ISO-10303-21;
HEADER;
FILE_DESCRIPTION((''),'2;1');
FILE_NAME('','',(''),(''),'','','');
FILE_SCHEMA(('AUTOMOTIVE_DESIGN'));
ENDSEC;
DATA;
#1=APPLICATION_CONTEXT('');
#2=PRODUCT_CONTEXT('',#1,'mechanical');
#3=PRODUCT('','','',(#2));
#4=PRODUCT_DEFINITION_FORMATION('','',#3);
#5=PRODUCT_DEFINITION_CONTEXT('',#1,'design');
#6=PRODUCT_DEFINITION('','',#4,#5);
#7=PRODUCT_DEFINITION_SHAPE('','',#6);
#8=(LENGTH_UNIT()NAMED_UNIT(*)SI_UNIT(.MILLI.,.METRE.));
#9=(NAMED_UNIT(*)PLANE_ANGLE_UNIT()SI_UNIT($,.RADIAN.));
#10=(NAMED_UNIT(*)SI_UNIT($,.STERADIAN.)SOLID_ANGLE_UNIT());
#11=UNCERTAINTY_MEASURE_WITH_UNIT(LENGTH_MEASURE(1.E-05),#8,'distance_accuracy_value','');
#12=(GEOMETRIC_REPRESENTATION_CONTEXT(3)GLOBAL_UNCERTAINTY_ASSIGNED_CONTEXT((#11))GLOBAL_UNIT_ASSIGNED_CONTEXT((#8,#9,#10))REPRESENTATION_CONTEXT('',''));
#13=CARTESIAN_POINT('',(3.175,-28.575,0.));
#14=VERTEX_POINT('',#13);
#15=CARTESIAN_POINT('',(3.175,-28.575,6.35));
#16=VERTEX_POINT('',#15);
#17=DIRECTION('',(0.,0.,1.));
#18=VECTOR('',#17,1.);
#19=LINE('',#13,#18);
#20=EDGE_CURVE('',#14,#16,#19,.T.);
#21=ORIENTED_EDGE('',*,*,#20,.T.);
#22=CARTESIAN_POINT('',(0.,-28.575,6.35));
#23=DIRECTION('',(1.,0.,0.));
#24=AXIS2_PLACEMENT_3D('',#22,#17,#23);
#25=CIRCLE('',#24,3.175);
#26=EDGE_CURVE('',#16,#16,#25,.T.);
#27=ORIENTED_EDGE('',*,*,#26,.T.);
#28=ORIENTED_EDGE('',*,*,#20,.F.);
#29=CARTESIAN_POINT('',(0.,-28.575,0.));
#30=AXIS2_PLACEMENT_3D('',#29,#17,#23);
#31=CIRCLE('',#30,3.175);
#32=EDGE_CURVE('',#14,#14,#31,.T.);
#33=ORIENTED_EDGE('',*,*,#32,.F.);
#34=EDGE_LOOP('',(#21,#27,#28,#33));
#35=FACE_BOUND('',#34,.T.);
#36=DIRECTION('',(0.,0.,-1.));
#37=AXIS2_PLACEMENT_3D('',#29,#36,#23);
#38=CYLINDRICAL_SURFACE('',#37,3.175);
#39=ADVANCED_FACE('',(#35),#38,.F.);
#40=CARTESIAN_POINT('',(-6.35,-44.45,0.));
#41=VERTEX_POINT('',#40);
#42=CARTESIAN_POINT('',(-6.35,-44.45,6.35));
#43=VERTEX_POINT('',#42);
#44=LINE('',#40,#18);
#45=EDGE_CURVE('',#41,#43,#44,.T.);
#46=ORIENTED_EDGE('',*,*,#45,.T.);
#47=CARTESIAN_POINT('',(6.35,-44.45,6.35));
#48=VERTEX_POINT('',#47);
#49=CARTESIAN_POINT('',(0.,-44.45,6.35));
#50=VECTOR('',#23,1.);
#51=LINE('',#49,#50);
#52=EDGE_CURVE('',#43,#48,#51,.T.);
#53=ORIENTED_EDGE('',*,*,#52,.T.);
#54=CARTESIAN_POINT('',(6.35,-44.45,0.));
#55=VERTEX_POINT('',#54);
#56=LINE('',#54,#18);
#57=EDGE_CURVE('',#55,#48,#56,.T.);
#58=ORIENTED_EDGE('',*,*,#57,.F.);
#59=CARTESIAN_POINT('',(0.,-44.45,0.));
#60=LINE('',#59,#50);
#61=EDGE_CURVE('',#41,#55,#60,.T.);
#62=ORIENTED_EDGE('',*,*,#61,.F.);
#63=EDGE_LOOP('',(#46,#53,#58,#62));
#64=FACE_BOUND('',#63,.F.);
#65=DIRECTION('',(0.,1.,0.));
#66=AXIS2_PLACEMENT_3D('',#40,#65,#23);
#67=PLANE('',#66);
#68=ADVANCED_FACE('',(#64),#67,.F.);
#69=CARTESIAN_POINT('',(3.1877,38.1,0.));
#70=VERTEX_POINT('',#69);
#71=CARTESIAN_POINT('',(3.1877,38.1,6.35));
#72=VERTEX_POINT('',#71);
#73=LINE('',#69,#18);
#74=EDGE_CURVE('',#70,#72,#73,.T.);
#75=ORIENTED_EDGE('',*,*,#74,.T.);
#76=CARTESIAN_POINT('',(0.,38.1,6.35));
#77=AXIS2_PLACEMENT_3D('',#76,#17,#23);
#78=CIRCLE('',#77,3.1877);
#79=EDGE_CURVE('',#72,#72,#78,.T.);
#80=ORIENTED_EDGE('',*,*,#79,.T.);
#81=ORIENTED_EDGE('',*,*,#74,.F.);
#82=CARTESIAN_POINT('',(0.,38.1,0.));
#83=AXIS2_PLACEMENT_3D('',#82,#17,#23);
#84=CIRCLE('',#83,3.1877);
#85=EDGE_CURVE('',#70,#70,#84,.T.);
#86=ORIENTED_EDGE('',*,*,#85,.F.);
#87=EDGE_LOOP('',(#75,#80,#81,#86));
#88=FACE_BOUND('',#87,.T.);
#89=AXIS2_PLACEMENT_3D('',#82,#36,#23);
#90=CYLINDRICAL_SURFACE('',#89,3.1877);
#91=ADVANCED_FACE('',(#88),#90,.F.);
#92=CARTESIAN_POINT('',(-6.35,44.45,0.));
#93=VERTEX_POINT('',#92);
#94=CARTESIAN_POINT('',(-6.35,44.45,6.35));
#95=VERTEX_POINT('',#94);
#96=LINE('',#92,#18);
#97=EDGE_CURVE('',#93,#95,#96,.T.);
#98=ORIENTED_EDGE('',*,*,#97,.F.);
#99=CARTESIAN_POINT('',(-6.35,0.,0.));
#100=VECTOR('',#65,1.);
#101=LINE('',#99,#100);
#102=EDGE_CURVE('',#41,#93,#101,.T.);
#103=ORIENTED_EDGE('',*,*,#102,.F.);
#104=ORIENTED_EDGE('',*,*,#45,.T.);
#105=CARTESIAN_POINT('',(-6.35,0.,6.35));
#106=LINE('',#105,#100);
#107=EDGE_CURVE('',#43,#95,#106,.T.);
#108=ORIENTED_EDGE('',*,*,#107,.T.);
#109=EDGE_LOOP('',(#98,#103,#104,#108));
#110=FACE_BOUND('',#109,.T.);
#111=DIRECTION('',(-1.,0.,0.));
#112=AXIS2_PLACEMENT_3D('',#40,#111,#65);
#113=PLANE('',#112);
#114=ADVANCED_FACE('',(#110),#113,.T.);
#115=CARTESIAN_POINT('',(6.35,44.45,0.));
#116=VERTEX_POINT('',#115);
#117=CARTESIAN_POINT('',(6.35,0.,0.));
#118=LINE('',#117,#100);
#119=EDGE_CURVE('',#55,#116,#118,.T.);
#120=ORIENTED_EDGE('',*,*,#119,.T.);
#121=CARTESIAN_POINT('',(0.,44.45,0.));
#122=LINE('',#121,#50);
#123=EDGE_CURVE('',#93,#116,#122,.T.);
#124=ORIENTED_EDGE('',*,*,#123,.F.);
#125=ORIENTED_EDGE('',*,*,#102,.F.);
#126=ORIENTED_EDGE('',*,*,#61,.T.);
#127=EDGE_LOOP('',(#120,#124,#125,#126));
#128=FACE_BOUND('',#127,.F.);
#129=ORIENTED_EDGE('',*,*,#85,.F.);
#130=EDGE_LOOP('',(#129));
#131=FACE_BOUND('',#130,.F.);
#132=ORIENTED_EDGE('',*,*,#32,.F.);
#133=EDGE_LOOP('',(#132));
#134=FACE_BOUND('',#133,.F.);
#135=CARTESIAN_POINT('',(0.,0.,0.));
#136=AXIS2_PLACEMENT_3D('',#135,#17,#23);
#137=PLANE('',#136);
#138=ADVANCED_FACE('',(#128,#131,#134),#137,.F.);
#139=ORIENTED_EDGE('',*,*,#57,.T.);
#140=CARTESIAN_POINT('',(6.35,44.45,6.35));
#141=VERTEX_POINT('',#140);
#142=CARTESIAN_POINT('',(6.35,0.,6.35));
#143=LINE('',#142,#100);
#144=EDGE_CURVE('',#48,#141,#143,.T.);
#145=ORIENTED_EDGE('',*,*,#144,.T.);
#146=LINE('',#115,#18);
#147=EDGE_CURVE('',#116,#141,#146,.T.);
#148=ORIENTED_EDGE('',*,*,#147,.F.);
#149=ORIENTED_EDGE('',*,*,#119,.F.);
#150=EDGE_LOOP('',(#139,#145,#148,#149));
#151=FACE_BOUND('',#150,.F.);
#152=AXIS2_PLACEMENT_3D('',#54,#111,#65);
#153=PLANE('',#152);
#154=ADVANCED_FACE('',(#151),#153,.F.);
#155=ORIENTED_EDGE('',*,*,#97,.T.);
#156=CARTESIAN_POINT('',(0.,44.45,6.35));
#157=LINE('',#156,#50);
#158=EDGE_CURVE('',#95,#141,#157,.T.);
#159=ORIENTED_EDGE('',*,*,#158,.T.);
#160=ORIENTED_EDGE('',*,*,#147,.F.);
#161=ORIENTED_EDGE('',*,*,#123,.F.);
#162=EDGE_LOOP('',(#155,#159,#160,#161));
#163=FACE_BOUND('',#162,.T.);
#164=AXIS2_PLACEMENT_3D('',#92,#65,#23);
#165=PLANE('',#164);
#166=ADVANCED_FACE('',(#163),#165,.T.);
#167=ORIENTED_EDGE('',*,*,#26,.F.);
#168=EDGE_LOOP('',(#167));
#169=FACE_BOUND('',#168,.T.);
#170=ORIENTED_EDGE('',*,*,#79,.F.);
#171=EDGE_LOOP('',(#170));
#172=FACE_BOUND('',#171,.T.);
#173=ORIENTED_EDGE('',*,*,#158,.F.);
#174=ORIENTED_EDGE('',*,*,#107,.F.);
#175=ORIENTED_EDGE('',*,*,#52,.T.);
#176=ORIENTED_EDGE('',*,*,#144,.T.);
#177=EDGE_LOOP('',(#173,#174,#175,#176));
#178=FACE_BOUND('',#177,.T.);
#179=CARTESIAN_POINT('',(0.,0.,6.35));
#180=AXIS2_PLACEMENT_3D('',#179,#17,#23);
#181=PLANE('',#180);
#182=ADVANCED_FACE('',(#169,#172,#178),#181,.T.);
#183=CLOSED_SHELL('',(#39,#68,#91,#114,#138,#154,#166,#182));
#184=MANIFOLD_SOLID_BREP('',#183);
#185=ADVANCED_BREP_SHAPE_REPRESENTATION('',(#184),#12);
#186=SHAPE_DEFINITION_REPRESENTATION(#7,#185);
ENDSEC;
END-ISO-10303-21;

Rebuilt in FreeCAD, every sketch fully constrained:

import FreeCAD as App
import Part
import Sketcher

V = App.Vector
Q = App.Units.Quantity

doc = App.newDocument("Part")
body = doc.addObject("PartDesign::Body", "Body")

# Sketch on XY plane
sketch1 = body.newObject("Sketcher::SketchObject", "Sketch")
sketch1.AttachmentSupport = (doc.getObject("XY_Plane"), [""])
sketch1.MapMode = "FlatFace"
sketch1.addGeometry([
    Part.LineSegment(V(-6.35, 44.45, 0), V(-6.35, -44.45, 0)),  # 0
    Part.LineSegment(V(-6.35, -44.45, 0), V(6.35, -44.45, 0)),  # 1
    Part.LineSegment(V(6.35, -44.45, 0), V(6.35, 44.45, 0)),  # 2
    Part.LineSegment(V(6.35, 44.45, 0), V(-6.35, 44.45, 0)),  # 3
    Part.Circle(V(0, -28.575, 0), V(0, 0, 1), 3.175),  # 4
    Part.Circle(V(0, 38.1, 0), V(0, 0, 1), 3.1877),  # 5
], False)
sketch1.addConstraint([
    Sketcher.Constraint("Coincident", 0, 2, 1, 1),
    Sketcher.Constraint("Coincident", 1, 2, 2, 1),
    Sketcher.Constraint("Coincident", 2, 2, 3, 1),
    Sketcher.Constraint("Coincident", 3, 2, 0, 1),
    Sketcher.Constraint("Vertical", 0),
    Sketcher.Constraint("Horizontal", 1),
    Sketcher.Constraint("Vertical", 2),
    Sketcher.Constraint("Horizontal", 3),
    Sketcher.Constraint("Symmetric", 0, 2, 2, 2, -1, 1),
    Sketcher.Constraint("PointOnObject", 4, 3, -2),
    Sketcher.Constraint("PointOnObject", 5, 3, -2),
    Sketcher.Constraint("Diameter", 4, Q("0.25 in")),
    Sketcher.Constraint("Diameter", 5, Q("0.251 in")),
    Sketcher.Constraint("DistanceX", 1, 1, 1, 2, Q("0.5 in")),
    Sketcher.Constraint("DistanceY", 0, 2, 0, 1, Q("3.5 in")),
    Sketcher.Constraint("DistanceY", -1, 1, 5, 3, Q("1.5 in")),
    Sketcher.Constraint("DistanceY", 4, 3, -1, 1, Q("1.125 in")),
])
pad1 = body.newObject("PartDesign::Pad", "Pad")
pad1.Profile = sketch1
pad1.Length = Q("0.25 in")

doc.recompute()
